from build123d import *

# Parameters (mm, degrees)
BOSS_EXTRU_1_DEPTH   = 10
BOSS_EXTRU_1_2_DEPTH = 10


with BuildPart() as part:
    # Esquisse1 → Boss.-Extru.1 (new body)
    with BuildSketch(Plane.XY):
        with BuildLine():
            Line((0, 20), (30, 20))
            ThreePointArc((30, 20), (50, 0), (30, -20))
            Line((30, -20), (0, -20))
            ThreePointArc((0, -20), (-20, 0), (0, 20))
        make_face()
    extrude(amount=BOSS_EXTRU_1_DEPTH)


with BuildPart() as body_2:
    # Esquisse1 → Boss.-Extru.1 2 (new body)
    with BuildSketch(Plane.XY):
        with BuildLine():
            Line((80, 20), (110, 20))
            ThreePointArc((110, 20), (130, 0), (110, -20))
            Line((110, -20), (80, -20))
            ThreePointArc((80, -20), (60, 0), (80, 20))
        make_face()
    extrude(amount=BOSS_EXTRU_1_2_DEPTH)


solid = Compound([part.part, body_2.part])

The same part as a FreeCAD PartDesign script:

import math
import FreeCAD as App
import Part
import Sketcher
Q = App.Units.Quantity

doc = App.newDocument("Part")
body = doc.addObject("PartDesign::Body", "Body")

# Sketch on XY plane
sketch1 = body.newObject("Sketcher::SketchObject", "Sketch")
sketch1.AttachmentSupport = (doc.getObject("XY_Plane"), [""])
sketch1.MapMode = "FlatFace"
sketch1.addGeometry([
    Part.LineSegment(App.Vector(30, 20, 0), App.Vector(0, 20, 0)),
    Part.ArcOfCircle(Part.Circle(App.Vector(0, 0, 0), App.Vector(0, 0, 1), 20), math.radians(90), math.radians(270)),
    Part.LineSegment(App.Vector(0, -20, 0), App.Vector(30, -20, 0)),
    Part.ArcOfCircle(Part.Circle(App.Vector(30, 0, 0), App.Vector(0, 0, 1), 20), math.radians(-90), math.radians(90)),
], False)
sketch1.addConstraint([
    Sketcher.Constraint("Tangent", 0, 2, 1, 1),
    Sketcher.Constraint("Tangent", 1, 2, 2, 1),
    Sketcher.Constraint("Tangent", 2, 2, 3, 1),
    Sketcher.Constraint("Tangent", 3, 2, 0, 1),
    Sketcher.Constraint("Horizontal", 0),
    Sketcher.Constraint("Horizontal", 2),
    Sketcher.Constraint("Coincident", 1, 3, -1, 1),
    Sketcher.Constraint("Radius", 1, Q("20 mm")),
    Sketcher.Constraint("DistanceX", 0, 2, 0, 1, Q("30 mm")),
])
pad1 = body.newObject("PartDesign::Pad", "Pad")
pad1.Profile = sketch1
pad1.Length = 10
body2 = doc.addObject("PartDesign::Body", "Body001")

# Sketch on XY plane
sketch2 = body2.newObject("Sketcher::SketchObject", "Sketch001")
sketch2.AttachmentSupport = (doc.getObject("XY_Plane001"), [""])
sketch2.MapMode = "FlatFace"
sketch2.addGeometry([
    Part.LineSegment(App.Vector(110, 20, 0), App.Vector(80, 20, 0)),
    Part.ArcOfCircle(Part.Circle(App.Vector(80, 0, 0), App.Vector(0, 0, 1), 20), math.radians(90), math.radians(270)),
    Part.LineSegment(App.Vector(80, -20, 0), App.Vector(110, -20, 0)),
    Part.ArcOfCircle(Part.Circle(App.Vector(110, 0, 0), App.Vector(0, 0, 1), 20), math.radians(-90), math.radians(90)),
], False)
sketch2.addConstraint([
    Sketcher.Constraint("Tangent", 0, 2, 1, 1),
    Sketcher.Constraint("Tangent", 1, 2, 2, 1),
    Sketcher.Constraint("Tangent", 2, 2, 3, 1),
    Sketcher.Constraint("Tangent", 3, 2, 0, 1),
    Sketcher.Constraint("Horizontal", 0),
    Sketcher.Constraint("Horizontal", 2),
    Sketcher.Constraint("PointOnObject", 1, 3, -1),
    Sketcher.Constraint("Radius", 1, Q("20 mm")),
    Sketcher.Constraint("DistanceX", 0, 2, 0, 1, Q("30 mm")),
    Sketcher.Constraint("DistanceX", -1, 1, 1, 3, Q("80 mm")),
])
pad2 = body2.newObject("PartDesign::Pad", "Pad001")
pad2.Profile = sketch2
pad2.Length = 10

doc.recompute()
